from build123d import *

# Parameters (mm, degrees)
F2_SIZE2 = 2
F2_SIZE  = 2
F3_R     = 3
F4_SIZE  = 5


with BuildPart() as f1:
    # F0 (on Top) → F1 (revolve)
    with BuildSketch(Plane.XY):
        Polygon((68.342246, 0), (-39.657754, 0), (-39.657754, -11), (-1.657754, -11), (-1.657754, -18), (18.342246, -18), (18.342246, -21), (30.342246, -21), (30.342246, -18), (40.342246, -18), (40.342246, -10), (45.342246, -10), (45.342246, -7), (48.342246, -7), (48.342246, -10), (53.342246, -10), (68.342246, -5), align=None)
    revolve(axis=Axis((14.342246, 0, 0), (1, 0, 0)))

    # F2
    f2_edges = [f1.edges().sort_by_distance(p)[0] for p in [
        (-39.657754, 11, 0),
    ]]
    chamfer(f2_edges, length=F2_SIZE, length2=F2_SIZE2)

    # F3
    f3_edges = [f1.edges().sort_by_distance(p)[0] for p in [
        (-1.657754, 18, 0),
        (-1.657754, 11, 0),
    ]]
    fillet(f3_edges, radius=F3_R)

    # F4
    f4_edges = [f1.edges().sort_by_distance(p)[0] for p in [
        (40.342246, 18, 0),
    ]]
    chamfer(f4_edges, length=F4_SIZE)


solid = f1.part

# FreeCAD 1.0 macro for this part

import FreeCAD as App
import Part
import Sketcher

V = App.Vector
Q = App.Units.Quantity


def edges_at(feature, points):
    """Names of the edges that pass closest to the given points."""
    edges = feature.Shape.Edges
    near = lambda p: min(range(len(edges)), key=lambda i: edges[i].distToShape(Part.Vertex(*p))[0])
    return sorted({f"Edge{near(p) + 1}" for p in points})


def add_polygon(sketch, points):
    """Adds a closed chain of lines whose ends are joined by coincident constraints."""
    first, n = sketch.GeometryCount, len(points)
    for a, b in zip(points, points[1:] + points[:1]):
        sketch.addGeometry(Part.LineSegment(App.Vector(*a, 0), App.Vector(*b, 0)), False)
    for i in range(n):
        sketch.addConstraint(Sketcher.Constraint("Coincident", first + i, 2, first + (i + 1) % n, 1))

doc = App.newDocument("Part")
params = doc.addObject("Spreadsheet::Sheet", "Params")
for row, (alias, value) in enumerate([
    ("sketch1_width", "108 mm"),
    ("sketch1_width2", "38 mm"),
    ("sketch1_width3", "20 mm"),
    ("sketch1_width4", "12 mm"),
    ("sketch1_width5", "10 mm"),
    ("revolution_angle", "360 deg"),
    ("chamfer_size", "2 mm"),
    ("chamfer_size2", "2 mm"),
    ("fillet_radius", "3 mm"),
    ("chamfer2_size", "5 mm"),
], start=1):
    params.set(f"A{row}", alias)
    params.set(f"B{row}", "=" + value)
    params.setAlias(f"B{row}", alias)

body = doc.addObject("PartDesign::Body", "Body")

sketch1 = doc.addObject("Sketcher::SketchObject", "Sketch")
body.addObject(sketch1)
sketch1.AttachmentSupport = (doc.XY_Plane, [""])
sketch1.MapMode = "FlatFace"
add_polygon(sketch1, [(68.342246, 0), (-39.657754, 0), (-39.657754, -11), (-1.657754, -11), (-1.657754, -18), (18.342246, -18), (18.342246, -21), (30.342246, -21), (30.342246, -18), (40.342246, -18), (40.342246, -10), (45.342246, -10), (45.342246, -7), (48.342246, -7), (48.342246, -10), (53.342246, -10), (68.342246, -5)])
sketch1.addConstraint([
    Sketcher.Constraint("Horizontal", 0),
    Sketcher.Constraint("Vertical", 1),
    Sketcher.Constraint("Horizontal", 2),
    Sketcher.Constraint("Vertical", 3),
    Sketcher.Constraint("Horizontal", 4),
    Sketcher.Constraint("Vertical", 5),
    Sketcher.Constraint("Horizontal", 6),
    Sketcher.Constraint("Vertical", 7),
    Sketcher.Constraint("Horizontal", 8),
    Sketcher.Constraint("Vertical", 9),
    Sketcher.Constraint("Horizontal", 10),
    Sketcher.Constraint("Vertical", 11),
    Sketcher.Constraint("Horizontal", 12),
    Sketcher.Constraint("Vertical", 13),
    Sketcher.Constraint("Horizontal", 14),
    Sketcher.Constraint("Vertical", 16),
    Sketcher.Constraint("PointOnObject", 0, 2, -1),
    Sketcher.Constraint("Horizontal", 4, 2, 7, 2),
    Sketcher.Constraint("Horizontal", 10, 2, 13, 2),
    Sketcher.Constraint("Equal", 10, 14),
    Sketcher.Constraint("Equal", 12, 5),
    Sketcher.Constraint("Equal", 7, 11),
    Sketcher.Constraint("Equal", 14, 16),
    Sketcher.Constraint("DistanceX", 0, 2, 0, 1, Q("108 mm")),
    Sketcher.Constraint("DistanceX", 2, 1, 2, 2, Q("38 mm")),
    Sketcher.Constraint("DistanceX", 4, 1, 4, 2, Q("20 mm")),
    Sketcher.Constraint("DistanceX", 6, 1, 6, 2, Q("12 mm")),
    Sketcher.Constraint("DistanceX", 8, 1, 8, 2, Q("10 mm")),
    Sketcher.Constraint("DistanceX", 10, 1, 10, 2, Q("5 mm")),
    Sketcher.Constraint("DistanceX", 12, 1, 12, 2, Q("3 mm")),
    Sketcher.Constraint("DistanceY", 1, 2, 1, 1, Q("11 mm")),
    Sketcher.Constraint("DistanceY", 3, 2, 3, 1, Q("7 mm")),
    Sketcher.Constraint("DistanceY", 9, 1, 9, 2, Q("8 mm")),
    Sketcher.Constraint("DistanceX", 0, 2, -1, 1, Q("39.657754 mm")),
])
sketch1.setExpression("Constraints[40]", "Params.sketch1_width")
sketch1.setExpression("Constraints[41]", "Params.sketch1_width2")
sketch1.setExpression("Constraints[42]", "Params.sketch1_width3")
sketch1.setExpression("Constraints[43]", "Params.sketch1_width4")
sketch1.setExpression("Constraints[44]", "Params.sketch1_width5")
revolution = doc.addObject("PartDesign::Revolution", "Revolution")
body.addObject(revolution)
revolution.Profile = sketch1
revolution.ReferenceAxis = (sketch1, ["H_Axis"])
revolution.setExpression("Angle", "Params.revolution_angle")
doc.recompute()

chamfer = doc.addObject("PartDesign::Chamfer", "Chamfer")
body.addObject(chamfer)
chamfer.Base = (revolution, edges_at(revolution, [(-39.658, 11, 0)]))
chamfer.ChamferType = "Two distances"
chamfer.setExpression("Size", "Params.chamfer_size")
chamfer.setExpression("Size2", "Params.chamfer_size2")
doc.recompute()

fillet = doc.addObject("PartDesign::Fillet", "Fillet")
body.addObject(fillet)
fillet.Base = (chamfer, edges_at(chamfer, [(-1.658, 18, 0), (-1.658, 11, 0)]))
fillet.setExpression("Radius", "Params.fillet_radius")
doc.recompute()

chamfer2 = doc.addObject("PartDesign::Chamfer", "Chamfer001")
body.addObject(chamfer2)
chamfer2.Base = (fillet, edges_at(fillet, [(40.342, 18, 0)]))
chamfer2.setExpression("Size", "Params.chamfer2_size")

doc.recompute()
